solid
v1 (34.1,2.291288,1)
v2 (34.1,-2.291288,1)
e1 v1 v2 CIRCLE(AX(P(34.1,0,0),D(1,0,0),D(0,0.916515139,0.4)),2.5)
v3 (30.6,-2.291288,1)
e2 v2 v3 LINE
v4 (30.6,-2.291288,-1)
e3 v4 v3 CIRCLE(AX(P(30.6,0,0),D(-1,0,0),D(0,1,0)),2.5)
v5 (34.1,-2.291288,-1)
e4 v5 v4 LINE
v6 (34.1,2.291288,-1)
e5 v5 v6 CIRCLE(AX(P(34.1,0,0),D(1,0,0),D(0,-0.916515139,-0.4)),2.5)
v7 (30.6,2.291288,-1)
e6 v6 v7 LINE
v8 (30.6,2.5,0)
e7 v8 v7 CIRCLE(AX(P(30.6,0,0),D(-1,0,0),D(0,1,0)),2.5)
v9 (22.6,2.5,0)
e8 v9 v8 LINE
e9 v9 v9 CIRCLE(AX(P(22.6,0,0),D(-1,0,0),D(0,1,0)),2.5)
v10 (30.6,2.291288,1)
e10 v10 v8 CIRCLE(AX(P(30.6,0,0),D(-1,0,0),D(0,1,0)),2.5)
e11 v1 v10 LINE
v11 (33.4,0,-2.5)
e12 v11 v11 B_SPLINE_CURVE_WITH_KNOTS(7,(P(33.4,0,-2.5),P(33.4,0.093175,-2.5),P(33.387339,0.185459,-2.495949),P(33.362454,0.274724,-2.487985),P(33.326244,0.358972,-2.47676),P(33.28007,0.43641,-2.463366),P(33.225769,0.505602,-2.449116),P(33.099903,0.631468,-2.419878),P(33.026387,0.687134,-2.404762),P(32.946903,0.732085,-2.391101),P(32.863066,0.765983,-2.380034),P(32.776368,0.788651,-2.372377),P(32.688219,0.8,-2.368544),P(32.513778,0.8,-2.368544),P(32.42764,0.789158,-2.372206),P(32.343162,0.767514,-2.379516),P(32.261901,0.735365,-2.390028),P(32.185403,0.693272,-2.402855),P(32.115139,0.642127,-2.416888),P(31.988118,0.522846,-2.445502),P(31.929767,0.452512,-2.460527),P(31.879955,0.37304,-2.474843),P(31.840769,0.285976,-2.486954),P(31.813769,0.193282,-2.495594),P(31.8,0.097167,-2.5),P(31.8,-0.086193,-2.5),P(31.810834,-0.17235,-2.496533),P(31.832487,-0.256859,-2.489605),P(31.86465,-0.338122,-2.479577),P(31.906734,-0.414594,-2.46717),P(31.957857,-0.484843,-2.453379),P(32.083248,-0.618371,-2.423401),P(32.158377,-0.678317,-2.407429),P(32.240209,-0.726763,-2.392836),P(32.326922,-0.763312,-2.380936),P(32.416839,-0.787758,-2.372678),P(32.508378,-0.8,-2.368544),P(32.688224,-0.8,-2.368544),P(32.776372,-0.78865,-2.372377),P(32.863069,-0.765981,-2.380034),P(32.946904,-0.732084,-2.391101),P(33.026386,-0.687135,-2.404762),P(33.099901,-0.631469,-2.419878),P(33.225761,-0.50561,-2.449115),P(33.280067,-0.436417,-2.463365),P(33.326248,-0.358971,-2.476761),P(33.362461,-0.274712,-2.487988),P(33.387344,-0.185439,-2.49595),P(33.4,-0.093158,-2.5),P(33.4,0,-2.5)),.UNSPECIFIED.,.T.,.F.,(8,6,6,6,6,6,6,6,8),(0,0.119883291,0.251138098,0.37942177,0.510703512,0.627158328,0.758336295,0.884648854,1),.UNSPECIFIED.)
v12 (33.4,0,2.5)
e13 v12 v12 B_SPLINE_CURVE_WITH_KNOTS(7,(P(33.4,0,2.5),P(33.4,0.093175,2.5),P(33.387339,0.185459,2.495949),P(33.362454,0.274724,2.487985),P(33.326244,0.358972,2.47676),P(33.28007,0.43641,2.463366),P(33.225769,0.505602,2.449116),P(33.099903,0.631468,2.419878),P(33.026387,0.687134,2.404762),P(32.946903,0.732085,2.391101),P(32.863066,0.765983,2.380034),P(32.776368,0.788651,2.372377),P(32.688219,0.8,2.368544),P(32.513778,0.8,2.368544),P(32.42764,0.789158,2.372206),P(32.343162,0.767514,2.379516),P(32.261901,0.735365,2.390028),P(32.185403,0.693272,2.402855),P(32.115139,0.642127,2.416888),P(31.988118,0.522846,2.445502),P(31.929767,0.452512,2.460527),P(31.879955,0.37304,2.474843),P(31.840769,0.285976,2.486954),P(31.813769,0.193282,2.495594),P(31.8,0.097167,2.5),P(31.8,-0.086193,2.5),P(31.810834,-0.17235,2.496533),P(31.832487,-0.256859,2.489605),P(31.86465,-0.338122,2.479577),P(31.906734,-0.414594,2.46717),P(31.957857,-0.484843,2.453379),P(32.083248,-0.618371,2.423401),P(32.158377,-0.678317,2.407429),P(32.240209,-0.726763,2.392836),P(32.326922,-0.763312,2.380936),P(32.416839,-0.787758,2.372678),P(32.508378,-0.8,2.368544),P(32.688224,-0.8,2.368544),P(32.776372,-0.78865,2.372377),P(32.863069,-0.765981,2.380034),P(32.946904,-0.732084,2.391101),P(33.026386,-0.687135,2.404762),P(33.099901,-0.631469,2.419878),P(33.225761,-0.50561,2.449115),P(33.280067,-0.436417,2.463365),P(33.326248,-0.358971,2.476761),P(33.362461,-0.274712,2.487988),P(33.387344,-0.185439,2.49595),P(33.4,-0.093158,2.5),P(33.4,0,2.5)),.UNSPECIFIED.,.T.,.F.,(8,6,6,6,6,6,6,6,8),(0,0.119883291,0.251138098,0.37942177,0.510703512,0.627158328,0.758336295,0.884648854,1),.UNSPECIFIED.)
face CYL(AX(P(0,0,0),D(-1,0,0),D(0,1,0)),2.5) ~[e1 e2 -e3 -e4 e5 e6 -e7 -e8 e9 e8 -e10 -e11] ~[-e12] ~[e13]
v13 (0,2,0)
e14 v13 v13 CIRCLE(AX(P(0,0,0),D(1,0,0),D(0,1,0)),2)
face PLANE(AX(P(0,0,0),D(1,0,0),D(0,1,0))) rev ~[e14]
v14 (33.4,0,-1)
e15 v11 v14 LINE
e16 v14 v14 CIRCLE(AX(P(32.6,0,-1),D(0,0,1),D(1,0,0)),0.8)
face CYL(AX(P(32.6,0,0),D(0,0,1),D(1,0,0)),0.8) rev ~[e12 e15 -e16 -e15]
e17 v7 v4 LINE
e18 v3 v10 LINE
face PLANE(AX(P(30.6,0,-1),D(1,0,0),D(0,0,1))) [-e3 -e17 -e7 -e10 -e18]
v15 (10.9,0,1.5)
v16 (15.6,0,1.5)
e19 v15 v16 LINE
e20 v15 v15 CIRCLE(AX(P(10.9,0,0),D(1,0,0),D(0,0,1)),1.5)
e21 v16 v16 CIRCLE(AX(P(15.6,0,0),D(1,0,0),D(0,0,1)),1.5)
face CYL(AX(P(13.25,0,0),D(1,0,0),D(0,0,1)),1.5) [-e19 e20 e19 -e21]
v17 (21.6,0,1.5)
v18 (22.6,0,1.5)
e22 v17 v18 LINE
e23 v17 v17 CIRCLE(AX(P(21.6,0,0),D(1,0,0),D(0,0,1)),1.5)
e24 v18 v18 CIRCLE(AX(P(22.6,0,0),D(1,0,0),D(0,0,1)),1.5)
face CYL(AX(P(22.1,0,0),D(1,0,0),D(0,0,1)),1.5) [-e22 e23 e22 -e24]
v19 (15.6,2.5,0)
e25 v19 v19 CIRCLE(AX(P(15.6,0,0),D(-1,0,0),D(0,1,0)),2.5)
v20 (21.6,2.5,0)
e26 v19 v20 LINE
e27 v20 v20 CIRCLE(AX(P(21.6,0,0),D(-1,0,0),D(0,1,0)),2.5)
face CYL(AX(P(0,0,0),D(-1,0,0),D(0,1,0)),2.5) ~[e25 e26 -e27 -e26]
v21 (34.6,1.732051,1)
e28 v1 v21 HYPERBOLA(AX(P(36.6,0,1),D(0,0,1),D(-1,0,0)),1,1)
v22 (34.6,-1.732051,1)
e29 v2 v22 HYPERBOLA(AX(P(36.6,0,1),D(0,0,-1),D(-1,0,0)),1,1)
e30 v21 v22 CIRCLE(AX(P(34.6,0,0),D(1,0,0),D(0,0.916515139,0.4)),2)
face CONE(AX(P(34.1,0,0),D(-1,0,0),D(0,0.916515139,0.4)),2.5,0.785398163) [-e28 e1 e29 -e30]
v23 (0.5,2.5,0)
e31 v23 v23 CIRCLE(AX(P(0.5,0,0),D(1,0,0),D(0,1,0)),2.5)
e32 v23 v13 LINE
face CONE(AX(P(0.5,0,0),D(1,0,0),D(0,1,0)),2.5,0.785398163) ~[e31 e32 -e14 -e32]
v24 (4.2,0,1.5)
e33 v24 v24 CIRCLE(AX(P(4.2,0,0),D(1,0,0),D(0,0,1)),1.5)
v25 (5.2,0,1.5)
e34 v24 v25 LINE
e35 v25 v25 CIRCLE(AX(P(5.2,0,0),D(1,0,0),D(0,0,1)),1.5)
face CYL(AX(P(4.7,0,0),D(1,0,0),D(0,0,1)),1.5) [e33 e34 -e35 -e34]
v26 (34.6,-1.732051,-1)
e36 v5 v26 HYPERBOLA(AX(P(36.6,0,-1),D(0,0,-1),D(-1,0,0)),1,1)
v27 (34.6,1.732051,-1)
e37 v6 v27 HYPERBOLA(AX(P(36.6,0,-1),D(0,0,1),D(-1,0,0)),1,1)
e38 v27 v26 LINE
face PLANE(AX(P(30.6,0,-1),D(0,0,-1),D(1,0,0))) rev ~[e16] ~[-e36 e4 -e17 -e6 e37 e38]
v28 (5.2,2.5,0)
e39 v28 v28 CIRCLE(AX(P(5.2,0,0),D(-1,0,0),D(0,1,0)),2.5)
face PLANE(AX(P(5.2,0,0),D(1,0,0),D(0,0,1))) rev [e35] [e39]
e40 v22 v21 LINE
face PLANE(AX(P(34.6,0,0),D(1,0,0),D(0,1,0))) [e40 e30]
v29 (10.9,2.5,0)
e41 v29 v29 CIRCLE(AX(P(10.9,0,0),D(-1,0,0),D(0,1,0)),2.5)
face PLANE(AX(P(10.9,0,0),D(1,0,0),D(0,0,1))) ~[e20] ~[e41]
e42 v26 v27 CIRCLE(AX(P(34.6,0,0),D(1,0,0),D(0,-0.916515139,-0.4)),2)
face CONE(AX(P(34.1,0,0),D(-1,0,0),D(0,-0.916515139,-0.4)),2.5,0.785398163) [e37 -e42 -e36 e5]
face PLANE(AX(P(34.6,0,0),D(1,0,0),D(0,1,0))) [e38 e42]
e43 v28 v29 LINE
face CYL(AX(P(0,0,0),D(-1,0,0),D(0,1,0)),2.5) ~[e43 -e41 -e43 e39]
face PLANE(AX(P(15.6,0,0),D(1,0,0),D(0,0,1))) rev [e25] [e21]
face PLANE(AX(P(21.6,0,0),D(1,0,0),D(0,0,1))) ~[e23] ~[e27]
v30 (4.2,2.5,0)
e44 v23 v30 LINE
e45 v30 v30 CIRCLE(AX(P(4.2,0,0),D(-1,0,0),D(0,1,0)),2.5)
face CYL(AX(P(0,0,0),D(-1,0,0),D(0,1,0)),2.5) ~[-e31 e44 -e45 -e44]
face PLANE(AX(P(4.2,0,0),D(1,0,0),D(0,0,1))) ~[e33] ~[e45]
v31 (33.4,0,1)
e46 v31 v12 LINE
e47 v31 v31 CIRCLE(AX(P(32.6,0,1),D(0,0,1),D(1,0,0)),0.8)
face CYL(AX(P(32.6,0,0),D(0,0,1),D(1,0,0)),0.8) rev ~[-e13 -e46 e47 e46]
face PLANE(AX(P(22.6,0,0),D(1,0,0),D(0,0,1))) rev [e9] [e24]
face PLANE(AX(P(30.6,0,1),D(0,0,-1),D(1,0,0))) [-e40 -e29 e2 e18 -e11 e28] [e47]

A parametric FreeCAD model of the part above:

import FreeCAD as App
import Part
import Sketcher
Q = App.Units.Quantity


def edges_at(feature, points):
    """Names of the edges that pass closest to the given points."""
    edges = feature.Shape.Edges
    near = lambda p: min(range(len(edges)), key=lambda i: edges[i].distToShape(Part.Vertex(*p))[0])
    return sorted({f"Edge{near(p) + 1}" for p in points})


def add_polygon(sketch, points):
    """Adds a closed chain of lines whose ends are joined by coincident constraints."""
    first, n = sketch.GeometryCount, len(points)
    for a, b in zip(points, points[1:] + points[:1]):
        sketch.addGeometry(Part.LineSegment(App.Vector(*a, 0), App.Vector(*b, 0)), False)
    for i in range(n):
        sketch.addConstraint(Sketcher.Constraint("Coincident", first + i, 2, first + (i + 1) % n, 1))

doc = App.newDocument("Part")
body = doc.addObject("PartDesign::Body", "Body")

# Sketch on YZ plane
sketch1 = body.newObject("Sketcher::SketchObject", "Sketch")
sketch1.AttachmentSupport = (doc.getObject("YZ_Plane"), [""])
sketch1.MapMode = "FlatFace"
sketch1.addGeometry(Part.Circle(App.Vector(0, 0, 0), App.Vector(0, 0, 1), 2.5), False)
sketch1.addConstraint([
    Sketcher.Constraint("Coincident", 0, 3, -1, 1),
    Sketcher.Constraint("Diameter", 0, Q("5 mm")),
])
pad1 = body.newObject("PartDesign::Pad", "Pad")
pad1.Profile = sketch1
pad1.Length = 34.6

# Sketch on XZ plane
sketch2 = body.newObject("Sketcher::SketchObject", "Sketch001")
sketch2.AttachmentSupport = (doc.getObject("XZ_Plane"), [""])
sketch2.MapMode = "FlatFace"
add_polygon(sketch2, [(4.2, 4.5), (4.2, 1.5), (5.2, 1.5), (5.2, 4.5)])  # lines 0-3
add_polygon(sketch2, [(10.9, 4.5), (10.9, 1.5), (15.6, 1.5), (15.6, 4.5)])  # lines 4-7
add_polygon(sketch2, [(21.6, 4.5), (21.6, 1.5), (22.6, 1.5), (22.6, 4.5)])  # lines 8-11
sketch2.addConstraint([
    Sketcher.Constraint("Vertical", 0),
    Sketcher.Constraint("Horizontal", 1),
    Sketcher.Constraint("Vertical", 2),
    Sketcher.Constraint("Horizontal", 3),
    Sketcher.Constraint("Vertical", 4),
    Sketcher.Constraint("Horizontal", 5),
    Sketcher.Constraint("Vertical", 6),
    Sketcher.Constraint("Horizontal", 7),
    Sketcher.Constraint("Vertical", 8),
    Sketcher.Constraint("Horizontal", 9),
    Sketcher.Constraint("Vertical", 10),
    Sketcher.Constraint("Horizontal", 11),
    Sketcher.Constraint("Horizontal", 1, 2, 4, 2),
    Sketcher.Constraint("Horizontal", 3, 2, 6, 2),
    Sketcher.Constraint("Horizontal", 5, 2, 8, 2),
    Sketcher.Constraint("Horizontal", 7, 2, 10, 2),
    Sketcher.Constraint("Equal", 3, 9),
    Sketcher.Constraint("DistanceX", 1, 1, 1, 2, Q("1 mm")),
    Sketcher.Constraint("DistanceY", 0, 2, 0, 1, Q("3 mm")),
    Sketcher.Constraint("DistanceX", 5, 1, 5, 2, Q("4.7 mm")),
    Sketcher.Constraint("DistanceX", 5, 2, 8, 2, Q("6 mm")),
    Sketcher.Constraint("DistanceX", -1, 1, 0, 2, Q("4.2 mm")),
    Sketcher.Constraint("DistanceY", -1, 1, 0, 2, Q("1.5 mm")),
    Sketcher.Constraint("DistanceX", -1, 1, 4, 2, Q("10.9 mm")),
])
groove = body.newObject("PartDesign::Groove", "Groove")
groove.Profile = sketch2
groove.ReferenceAxis = (sketch2, ["H_Axis"])
groove.Angle = 360

# Sketch on XZ plane
sketch3 = body.newObject("Sketcher::SketchObject", "Sketch002")
sketch3.AttachmentSupport = (doc.getObject("XZ_Plane"), [""])
sketch3.MapMode = "FlatFace"
add_polygon(sketch3, [(30.6, 1), (30.6, -1), (34.6, -1), (34.6, 1)])  # lines 0-3
sketch3.addConstraint([
    Sketcher.Constraint("Vertical", 0),
    Sketcher.Constraint("Horizontal", 1),
    Sketcher.Constraint("Vertical", 2),
    Sketcher.Constraint("Horizontal", 3),
    Sketcher.Constraint("DistanceX", 1, 1, 1, 2, Q("4 mm")),
    Sketcher.Constraint("DistanceY", 0, 2, 0, 1, Q("2 mm")),
    Sketcher.Constraint("DistanceY", 0, 2, -1, 1, Q("1 mm")),
    Sketcher.Constraint("DistanceX", -1, 1, 0, 2, Q("30.6 mm")),
])
pocket1 = body.newObject("PartDesign::Pocket", "Pocket")
pocket1.Profile = sketch3
pocket1.Length = 25
pocket1.Midplane = True

# Sketch on XY plane
sketch4 = body.newObject("Sketcher::SketchObject", "Sketch003")
sketch4.AttachmentSupport = (doc.getObject("XY_Plane"), [""])
sketch4.MapMode = "FlatFace"
sketch4.addGeometry(Part.Circle(App.Vector(32.6, 0, 0), App.Vector(0, 0, 1), 0.8), False)
sketch4.addConstraint([
    Sketcher.Constraint("PointOnObject", 0, 3, -1),
    Sketcher.Constraint("Diameter", 0, Q("1.6 mm")),
    Sketcher.Constraint("DistanceX", -1, 1, 0, 3, Q("32.6 mm")),
])
pocket2 = body.newObject("PartDesign::Pocket", "Pocket001")
pocket2.Profile = sketch4
pocket2.Length = 25
pocket2.Midplane = True
doc.recompute()

chamfer = body.newObject("PartDesign::Chamfer", "Chamfer")
chamfer.Base = (pocket2, edges_at(pocket2, [(34.6, 0, -2.5), (34.6, 0, 2.5), (0, -2.5, 0)]))
chamfer.Size = 0.5

doc.recompute()
